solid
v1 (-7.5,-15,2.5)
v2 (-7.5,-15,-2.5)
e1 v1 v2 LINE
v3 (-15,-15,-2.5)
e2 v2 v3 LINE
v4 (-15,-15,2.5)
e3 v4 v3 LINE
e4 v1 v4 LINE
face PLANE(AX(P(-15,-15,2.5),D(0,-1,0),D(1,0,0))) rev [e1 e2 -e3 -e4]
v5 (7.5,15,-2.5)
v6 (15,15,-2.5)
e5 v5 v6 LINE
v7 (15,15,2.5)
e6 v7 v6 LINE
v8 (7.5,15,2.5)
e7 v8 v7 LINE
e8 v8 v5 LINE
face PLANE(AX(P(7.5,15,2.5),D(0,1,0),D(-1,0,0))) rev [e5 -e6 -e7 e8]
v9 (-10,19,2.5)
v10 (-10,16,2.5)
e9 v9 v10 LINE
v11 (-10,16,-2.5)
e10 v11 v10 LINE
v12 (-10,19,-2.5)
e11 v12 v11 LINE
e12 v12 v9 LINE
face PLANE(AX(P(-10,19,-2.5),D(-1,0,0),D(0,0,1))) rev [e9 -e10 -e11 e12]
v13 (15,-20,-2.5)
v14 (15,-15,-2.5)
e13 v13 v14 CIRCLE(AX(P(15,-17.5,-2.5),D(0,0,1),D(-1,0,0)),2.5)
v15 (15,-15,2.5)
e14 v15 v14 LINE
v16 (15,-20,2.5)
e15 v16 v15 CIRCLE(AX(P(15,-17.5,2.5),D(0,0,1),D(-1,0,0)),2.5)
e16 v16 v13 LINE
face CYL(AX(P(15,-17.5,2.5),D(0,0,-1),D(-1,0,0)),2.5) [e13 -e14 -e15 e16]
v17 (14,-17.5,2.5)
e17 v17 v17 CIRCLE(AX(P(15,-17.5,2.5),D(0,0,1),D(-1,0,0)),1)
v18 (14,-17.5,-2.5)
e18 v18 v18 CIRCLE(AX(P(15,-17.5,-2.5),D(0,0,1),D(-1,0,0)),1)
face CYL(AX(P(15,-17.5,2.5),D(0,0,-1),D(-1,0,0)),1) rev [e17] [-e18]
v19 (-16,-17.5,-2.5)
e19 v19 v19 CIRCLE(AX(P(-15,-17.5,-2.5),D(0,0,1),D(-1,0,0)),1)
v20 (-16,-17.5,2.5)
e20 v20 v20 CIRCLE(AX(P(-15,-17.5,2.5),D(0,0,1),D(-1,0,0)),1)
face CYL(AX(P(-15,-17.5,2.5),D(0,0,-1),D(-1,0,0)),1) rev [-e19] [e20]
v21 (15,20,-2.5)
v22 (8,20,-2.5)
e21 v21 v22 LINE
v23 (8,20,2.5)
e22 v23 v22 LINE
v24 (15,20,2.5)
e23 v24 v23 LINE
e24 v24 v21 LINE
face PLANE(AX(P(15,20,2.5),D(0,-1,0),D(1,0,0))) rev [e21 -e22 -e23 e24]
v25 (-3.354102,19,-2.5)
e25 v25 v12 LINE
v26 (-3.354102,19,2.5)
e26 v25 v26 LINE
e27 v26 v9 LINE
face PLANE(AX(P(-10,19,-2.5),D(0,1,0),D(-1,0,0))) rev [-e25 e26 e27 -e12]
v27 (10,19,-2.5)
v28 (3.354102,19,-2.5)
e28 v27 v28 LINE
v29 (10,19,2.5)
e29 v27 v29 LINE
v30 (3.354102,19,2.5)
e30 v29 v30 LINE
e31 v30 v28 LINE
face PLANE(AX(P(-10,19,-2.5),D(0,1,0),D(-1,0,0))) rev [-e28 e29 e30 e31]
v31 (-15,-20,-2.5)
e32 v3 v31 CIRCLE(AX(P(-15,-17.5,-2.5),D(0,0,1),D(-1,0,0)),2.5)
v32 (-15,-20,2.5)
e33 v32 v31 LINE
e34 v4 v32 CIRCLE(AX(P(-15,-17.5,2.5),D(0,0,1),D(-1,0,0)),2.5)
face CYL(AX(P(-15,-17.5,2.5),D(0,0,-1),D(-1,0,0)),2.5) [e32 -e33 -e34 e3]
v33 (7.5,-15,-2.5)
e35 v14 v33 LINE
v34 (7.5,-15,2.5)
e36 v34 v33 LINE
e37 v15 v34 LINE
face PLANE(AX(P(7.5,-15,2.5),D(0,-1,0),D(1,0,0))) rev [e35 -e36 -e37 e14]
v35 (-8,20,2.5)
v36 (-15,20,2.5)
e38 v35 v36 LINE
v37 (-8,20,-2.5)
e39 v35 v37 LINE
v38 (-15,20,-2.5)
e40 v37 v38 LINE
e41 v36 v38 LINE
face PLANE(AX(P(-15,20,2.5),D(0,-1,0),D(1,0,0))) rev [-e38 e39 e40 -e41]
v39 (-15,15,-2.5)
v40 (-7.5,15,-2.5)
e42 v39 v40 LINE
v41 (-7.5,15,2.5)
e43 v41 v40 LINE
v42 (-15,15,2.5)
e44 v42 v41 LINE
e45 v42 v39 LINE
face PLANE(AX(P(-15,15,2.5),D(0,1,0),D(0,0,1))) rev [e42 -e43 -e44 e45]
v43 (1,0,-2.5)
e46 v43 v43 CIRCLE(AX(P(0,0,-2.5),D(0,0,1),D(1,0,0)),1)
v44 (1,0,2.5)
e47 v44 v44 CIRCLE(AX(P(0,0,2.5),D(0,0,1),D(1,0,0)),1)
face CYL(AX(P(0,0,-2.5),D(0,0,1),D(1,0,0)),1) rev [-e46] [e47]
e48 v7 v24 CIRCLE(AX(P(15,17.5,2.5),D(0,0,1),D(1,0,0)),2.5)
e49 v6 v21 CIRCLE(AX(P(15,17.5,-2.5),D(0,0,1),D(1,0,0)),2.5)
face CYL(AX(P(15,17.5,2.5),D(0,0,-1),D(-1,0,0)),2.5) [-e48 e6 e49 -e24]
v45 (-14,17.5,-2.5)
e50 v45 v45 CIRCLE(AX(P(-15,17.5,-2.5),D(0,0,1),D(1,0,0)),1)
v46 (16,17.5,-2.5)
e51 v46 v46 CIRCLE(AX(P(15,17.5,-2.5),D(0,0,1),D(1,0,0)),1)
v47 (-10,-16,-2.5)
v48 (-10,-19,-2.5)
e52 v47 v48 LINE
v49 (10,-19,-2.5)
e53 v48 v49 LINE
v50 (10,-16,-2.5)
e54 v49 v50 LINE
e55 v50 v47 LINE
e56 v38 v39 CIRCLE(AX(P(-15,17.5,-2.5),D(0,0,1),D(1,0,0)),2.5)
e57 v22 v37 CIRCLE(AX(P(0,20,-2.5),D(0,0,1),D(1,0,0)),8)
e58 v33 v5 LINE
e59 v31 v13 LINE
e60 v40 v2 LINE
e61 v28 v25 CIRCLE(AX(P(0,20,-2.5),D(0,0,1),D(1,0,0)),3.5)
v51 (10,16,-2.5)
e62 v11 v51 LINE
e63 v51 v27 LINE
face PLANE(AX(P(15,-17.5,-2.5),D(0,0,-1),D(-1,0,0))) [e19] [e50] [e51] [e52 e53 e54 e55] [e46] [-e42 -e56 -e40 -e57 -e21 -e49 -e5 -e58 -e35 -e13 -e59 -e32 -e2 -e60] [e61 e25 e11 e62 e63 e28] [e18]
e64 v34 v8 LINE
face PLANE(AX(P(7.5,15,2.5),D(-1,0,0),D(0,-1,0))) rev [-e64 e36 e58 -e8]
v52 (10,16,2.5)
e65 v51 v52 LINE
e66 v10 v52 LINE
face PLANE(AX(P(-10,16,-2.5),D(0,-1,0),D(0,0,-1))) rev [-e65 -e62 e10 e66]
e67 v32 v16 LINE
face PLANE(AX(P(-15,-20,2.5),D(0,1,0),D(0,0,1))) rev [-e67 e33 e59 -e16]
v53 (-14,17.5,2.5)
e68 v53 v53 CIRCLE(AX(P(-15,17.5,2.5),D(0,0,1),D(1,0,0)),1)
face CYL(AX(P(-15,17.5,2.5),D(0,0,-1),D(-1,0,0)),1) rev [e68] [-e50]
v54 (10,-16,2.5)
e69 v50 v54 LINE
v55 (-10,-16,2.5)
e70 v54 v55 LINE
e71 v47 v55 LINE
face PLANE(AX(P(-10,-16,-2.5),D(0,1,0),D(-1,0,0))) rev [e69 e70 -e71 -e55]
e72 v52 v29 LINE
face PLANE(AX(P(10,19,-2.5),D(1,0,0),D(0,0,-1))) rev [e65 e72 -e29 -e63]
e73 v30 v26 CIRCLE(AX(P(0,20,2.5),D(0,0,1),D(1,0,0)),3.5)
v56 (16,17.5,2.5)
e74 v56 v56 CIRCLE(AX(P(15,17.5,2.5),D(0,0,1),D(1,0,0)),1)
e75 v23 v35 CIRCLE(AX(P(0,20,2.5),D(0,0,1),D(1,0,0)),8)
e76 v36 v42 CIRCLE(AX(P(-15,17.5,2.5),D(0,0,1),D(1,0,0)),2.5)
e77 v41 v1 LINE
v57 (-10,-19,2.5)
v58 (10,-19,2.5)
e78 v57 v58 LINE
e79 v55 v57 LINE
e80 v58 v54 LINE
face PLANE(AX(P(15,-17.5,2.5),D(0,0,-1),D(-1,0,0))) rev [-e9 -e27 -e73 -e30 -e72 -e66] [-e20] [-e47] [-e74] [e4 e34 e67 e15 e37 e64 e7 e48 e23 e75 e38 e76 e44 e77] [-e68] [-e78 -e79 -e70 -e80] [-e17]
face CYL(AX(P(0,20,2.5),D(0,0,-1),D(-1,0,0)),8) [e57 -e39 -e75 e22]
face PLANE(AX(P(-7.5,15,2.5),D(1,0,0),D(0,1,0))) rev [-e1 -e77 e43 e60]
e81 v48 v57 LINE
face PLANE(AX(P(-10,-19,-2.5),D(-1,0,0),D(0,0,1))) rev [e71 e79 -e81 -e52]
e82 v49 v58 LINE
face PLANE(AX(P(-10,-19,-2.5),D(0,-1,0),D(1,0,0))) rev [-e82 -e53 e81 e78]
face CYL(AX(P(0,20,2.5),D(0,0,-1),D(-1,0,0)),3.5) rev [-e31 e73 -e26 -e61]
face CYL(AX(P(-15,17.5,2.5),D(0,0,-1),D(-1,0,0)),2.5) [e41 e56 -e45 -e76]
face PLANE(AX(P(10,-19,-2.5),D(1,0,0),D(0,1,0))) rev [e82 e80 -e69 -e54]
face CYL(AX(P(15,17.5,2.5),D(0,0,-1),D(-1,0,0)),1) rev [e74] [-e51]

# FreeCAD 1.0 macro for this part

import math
import FreeCAD as App
import Part
import Sketcher
Q = App.Units.Quantity

doc = App.newDocument("Part")
body = doc.addObject("PartDesign::Body", "Body")

sketch1 = doc.addObject("Sketcher::SketchObject", "Sketch")
body.addObject(sketch1)
sketch1.AttachmentSupport = (doc.XY_Plane, [""])
sketch1.MapMode = "FlatFace"
sketch1.addGeometry([
    Part.LineSegment(App.Vector(7.5, 15, 0), App.Vector(15, 15, 0)),
    Part.ArcOfCircle(Part.Circle(App.Vector(15, 17.5, 0), App.Vector(0, 0, 1), 2.5), math.radians(-90), math.radians(90)),
    Part.LineSegment(App.Vector(15, 20, 0), App.Vector(8, 20, 0)),
    Part.ArcOfCircle(Part.Circle(App.Vector(0, 20, 0), App.Vector(0, 0, 1), 8), math.radians(0), math.radians(180)),
    Part.LineSegment(App.Vector(-8, 20, 0), App.Vector(-15, 20, 0)),
    Part.ArcOfCircle(Part.Circle(App.Vector(-15, 17.5, 0), App.Vector(0, 0, 1), 2.5), math.radians(90), math.radians(270)),
    Part.LineSegment(App.Vector(-15, 15, 0), App.Vector(-7.5, 15, 0)),
    Part.LineSegment(App.Vector(-7.5, 15, 0), App.Vector(-7.5, -15, 0)),
    Part.LineSegment(App.Vector(-7.5, -15, 0), App.Vector(-15, -15, 0)),
    Part.ArcOfCircle(Part.Circle(App.Vector(-15, -17.5, 0), App.Vector(0, 0, 1), 2.5), math.radians(90), math.radians(270)),
    Part.LineSegment(App.Vector(-15, -20, 0), App.Vector(15, -20, 0)),
    Part.ArcOfCircle(Part.Circle(App.Vector(15, -17.5, 0), App.Vector(0, 0, 1), 2.5), math.radians(-90), math.radians(90)),
    Part.LineSegment(App.Vector(15, -15, 0), App.Vector(7.5, -15, 0)),
    Part.LineSegment(App.Vector(7.5, -15, 0), App.Vector(7.5, 15, 0)),
    Part.Circle(App.Vector(-15, -17.5, 0), App.Vector(0, 0, 1), 1),
    Part.Circle(App.Vector(15, -17.5, 0), App.Vector(0, 0, 1), 1),
    Part.Circle(App.Vector(-15, 17.5, 0), App.Vector(0, 0, 1), 1),
    Part.Circle(App.Vector(0, 20, 0), App.Vector(0, 0, 1), 3.5),
    Part.Circle(App.Vector(15, 17.5, 0), App.Vector(0, 0, 1), 1),
], False)
sketch1.addConstraint([
    Sketcher.Constraint("Tangent", 0, 2, 1, 1),
    Sketcher.Constraint("Tangent", 1, 2, 2, 1),
    Sketcher.Constraint("Coincident", 2, 2, 3, 1),
    Sketcher.Constraint("Coincident", 3, 2, 4, 1),
    Sketcher.Constraint("Tangent", 4, 2, 5, 1),
    Sketcher.Constraint("Tangent", 5, 2, 6, 1),
    Sketcher.Constraint("Coincident", 6, 2, 7, 1),
    Sketcher.Constraint("Coincident", 7, 2, 8, 1),
    Sketcher.Constraint("Tangent", 8, 2, 9, 1),
    Sketcher.Constraint("Tangent", 9, 2, 10, 1),
    Sketcher.Constraint("Tangent", 10, 2, 11, 1),
    Sketcher.Constraint("Tangent", 11, 2, 12, 1),
    Sketcher.Constraint("Coincident", 12, 2, 13, 1),
    Sketcher.Constraint("Coincident", 13, 2, 0, 1),
    Sketcher.Constraint("Horizontal", 0),
    Sketcher.Constraint("Horizontal", 2),
    Sketcher.Constraint("Horizontal", 4),
    Sketcher.Constraint("Horizontal", 6),
    Sketcher.Constraint("Vertical", 7),
    Sketcher.Constraint("Horizontal", 8),
    Sketcher.Constraint("Horizontal", 10),
    Sketcher.Constraint("Horizontal", 12),
    Sketcher.Constraint("Vertical", 13),
    Sketcher.Constraint("Coincident", 14, 3, 9, 3),
    Sketcher.Constraint("Coincident", 15, 3, 11, 3),
    Sketcher.Constraint("Coincident", 16, 3, 5, 3),
    Sketcher.Constraint("Coincident", 17, 3, 3, 3),
    Sketcher.Constraint("Coincident", 18, 3, 1, 3),
    Sketcher.Constraint("Equal", 1, 5),
    Sketcher.Constraint("Equal", 5, 9),
    Sketcher.Constraint("Equal", 9, 11),
    Sketcher.Constraint("Equal", 14, 15),
    Sketcher.Constraint("Equal", 15, 16),
    Sketcher.Constraint("Equal", 16, 18),
    Sketcher.Constraint("Symmetric", 1, 3, 9, 3, -1, 1),
    Sketcher.Constraint("Symmetric", 5, 3, 11, 3, -1, 1),
    Sketcher.Constraint("PointOnObject", 3, 3, -2),
    Sketcher.Constraint("Horizontal", 17, 3, 1, 2),
    Sketcher.Constraint("Vertical", 5, 3, 9, 3),
    Sketcher.Constraint("Equal", 0, 6),
    Sketcher.Constraint("Equal", 10, 7),
    Sketcher.Constraint("Diameter", 14, Q("2 mm")),
    Sketcher.Constraint("Diameter", 17, Q("7 mm")),
    Sketcher.Constraint("Radius", 3, Q("8 mm")),
    Sketcher.Constraint("Radius", 1, Q("2.5 mm")),
    Sketcher.Constraint("DistanceX", 2, 2, 2, 1, Q("7 mm")),
    Sketcher.Constraint("DistanceX", 0, 1, 0, 2, Q("7.5 mm")),
])
pad1 = doc.addObject("PartDesign::Pad", "Pad")
body.addObject(pad1)
pad1.Profile = sketch1
pad1.Length = 5
pad1.Midplane = True

sketch2 = doc.addObject("Sketcher::SketchObject", "Sketch001")
body.addObject(sketch2)
sketch2.AttachmentSupport = (doc.XY_Plane, [""])
sketch2.MapMode = "FlatFace"
sketch2.AttachmentOffset = App.Placement(App.Vector(0, 0, 2.5), App.Rotation())
sketch2.addGeometry([
    Part.Circle(App.Vector(0, 0, 0), App.Vector(0, 0, 1), 1),
    Part.LineSegment(App.Vector(-10, 19, 0), App.Vector(-10, 16, 0)),
    Part.LineSegment(App.Vector(-10, 16, 0), App.Vector(10, 16, 0)),
    Part.LineSegment(App.Vector(10, 16, 0), App.Vector(10, 19, 0)),
    Part.LineSegment(App.Vector(10, 19, 0), App.Vector(-10, 19, 0)),
    Part.LineSegment(App.Vector(-10, -16, 0), App.Vector(-10, -19, 0)),
    Part.LineSegment(App.Vector(-10, -19, 0), App.Vector(10, -19, 0)),
    Part.LineSegment(App.Vector(10, -19, 0), App.Vector(10, -16, 0)),
    Part.LineSegment(App.Vector(10, -16, 0), App.Vector(-10, -16, 0)),
], False)
sketch2.addConstraint([
    Sketcher.Constraint("Coincident", 1, 2, 2, 1),
    Sketcher.Constraint("Coincident", 2, 2, 3, 1),
    Sketcher.Constraint("Coincident", 3, 2, 4, 1),
    Sketcher.Constraint("Coincident", 4, 2, 1, 1),
    Sketcher.Constraint("Coincident", 5, 2, 6, 1),
    Sketcher.Constraint("Coincident", 6, 2, 7, 1),
    Sketcher.Constraint("Coincident", 7, 2, 8, 1),
    Sketcher.Constraint("Coincident", 8, 2, 5, 1),
    Sketcher.Constraint("Vertical", 1),
    Sketcher.Constraint("Horizontal", 2),
    Sketcher.Constraint("Vertical", 3),
    Sketcher.Constraint("Horizontal", 4),
    Sketcher.Constraint("Vertical", 5),
    Sketcher.Constraint("Horizontal", 6),
    Sketcher.Constraint("Vertical", 7),
    Sketcher.Constraint("Horizontal", 8),
    Sketcher.Constraint("Coincident", 0, 3, -1, 1),
    Sketcher.Constraint("Symmetric", 3, 2, 5, 2, -1, 1),
    Sketcher.Constraint("Symmetric", 1, 2, 7, 2, -1, 1),
    Sketcher.Constraint("Vertical", 4, 2, 5, 2),
    Sketcher.Constraint("Diameter", 0, Q("2 mm")),
    Sketcher.Constraint("DistanceX", 2, 1, 2, 2, Q("20 mm")),
    Sketcher.Constraint("DistanceY", 1, 2, 1, 1, Q("3 mm")),
    Sketcher.Constraint("DistanceY", -1, 1, 1, 2, Q("16 mm")),
])
pocket1 = doc.addObject("PartDesign::Pocket", "Pocket")
body.addObject(pocket1)
pocket1.Profile = sketch2
pocket1.Type = "ThroughAll"

doc.recompute()
